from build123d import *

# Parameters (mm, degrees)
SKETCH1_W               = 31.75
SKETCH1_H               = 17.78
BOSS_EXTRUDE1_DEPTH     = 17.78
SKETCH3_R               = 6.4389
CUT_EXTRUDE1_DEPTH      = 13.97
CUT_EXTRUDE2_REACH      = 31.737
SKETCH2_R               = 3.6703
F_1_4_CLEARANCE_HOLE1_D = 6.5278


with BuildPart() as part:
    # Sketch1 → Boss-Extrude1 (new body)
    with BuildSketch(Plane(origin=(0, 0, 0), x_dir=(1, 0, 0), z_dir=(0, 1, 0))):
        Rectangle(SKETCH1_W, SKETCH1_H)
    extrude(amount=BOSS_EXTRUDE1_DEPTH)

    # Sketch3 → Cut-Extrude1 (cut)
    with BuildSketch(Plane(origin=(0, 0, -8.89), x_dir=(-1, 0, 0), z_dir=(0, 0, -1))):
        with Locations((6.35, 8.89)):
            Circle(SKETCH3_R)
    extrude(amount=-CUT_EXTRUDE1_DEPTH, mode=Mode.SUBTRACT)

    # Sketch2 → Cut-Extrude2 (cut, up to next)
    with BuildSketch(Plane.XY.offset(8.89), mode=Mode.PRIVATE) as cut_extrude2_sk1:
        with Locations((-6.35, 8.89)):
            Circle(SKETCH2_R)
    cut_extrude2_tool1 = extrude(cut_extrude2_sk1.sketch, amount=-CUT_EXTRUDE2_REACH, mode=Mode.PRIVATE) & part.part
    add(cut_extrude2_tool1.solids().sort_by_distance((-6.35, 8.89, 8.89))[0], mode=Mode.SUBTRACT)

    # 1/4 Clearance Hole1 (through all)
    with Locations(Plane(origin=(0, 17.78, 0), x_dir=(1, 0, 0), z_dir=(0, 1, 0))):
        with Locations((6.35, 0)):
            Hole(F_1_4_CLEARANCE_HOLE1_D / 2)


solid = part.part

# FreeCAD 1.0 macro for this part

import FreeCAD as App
import Part
import Sketcher

V = App.Vector
Q = App.Units.Quantity

doc = App.newDocument("Part")
body = doc.addObject("PartDesign::Body", "Body")

# Sketch on XZ plane
sketch1 = body.newObject("Sketcher::SketchObject", "Sketch")
sketch1.AttachmentSupport = (doc.getObject("XZ_Plane"), [""])
sketch1.MapMode = "FlatFace"
sketch1.addGeometry([
    Part.LineSegment(V(-16, -9, 0), V(-16, 9, 0)),
    Part.LineSegment(V(-16, 9, 0), V(16, 9, 0)),
    Part.LineSegment(V(16, 9, 0), V(16, -9, 0)),
    Part.LineSegment(V(16, -9, 0), V(-16, -9, 0)),
], False)
sketch1.addConstraint([
    Sketcher.Constraint("Coincident", 0, 2, 1, 1),
    Sketcher.Constraint("Coincident", 1, 2, 2, 1),
    Sketcher.Constraint("Coincident", 2, 2, 3, 1),
    Sketcher.Constraint("Coincident", 3, 2, 0, 1),
    Sketcher.Constraint("Vertical", 0),
    Sketcher.Constraint("Horizontal", 1),
    Sketcher.Constraint("Vertical", 2),
    Sketcher.Constraint("Horizontal", 3),
    Sketcher.Constraint("Symmetric", 0, 2, 2, 2, -1, 1),
    Sketcher.Constraint("DistanceY", 0, 1, 0, 2, Q("0.7 in")),
    Sketcher.Constraint("DistanceX", 1, 1, 1, 2, Q("1.25 in")),
])
pad1 = body.newObject("PartDesign::Pad", "Pad")
pad1.Profile = sketch1
pad1.Length = Q("0.7 in")
pad1.Reversed = True

# Sketch on XY plane
sketch2 = body.newObject("Sketcher::SketchObject", "Sketch001")
sketch2.AttachmentSupport = (doc.getObject("XY_Plane"), [""])
sketch2.MapMode = "FlatFace"
sketch2.AttachmentOffset = App.Placement(V(0, 0, -0.35 * 25.4), App.Rotation())
sketch2.addGeometry(Part.Circle(V(-6, 9, 0), V(0, 0, 1), 6), False)
sketch2.addConstraint([
    Sketcher.Constraint("Diameter", 0, Q("0.507 in")),
    Sketcher.Constraint("DistanceX", 0, 3, -1, 1, Q("0.25 in")),
    Sketcher.Constraint("DistanceY", -1, 1, 0, 3, Q("0.35 in")),
])
pocket1 = body.newObject("PartDesign::Pocket", "Pocket")
pocket1.Profile = sketch2
pocket1.Length = Q("0.55 in")
pocket1.Reversed = True

# Sketch on XY plane
sketch3 = body.newObject("Sketcher::SketchObject", "Sketch002")
sketch3.AttachmentSupport = (doc.getObject("XY_Plane"), [""])
sketch3.MapMode = "FlatFace"
sketch3.AttachmentOffset = App.Placement(V(0, 0, 0.35 * 25.4), App.Rotation())
sketch3.addGeometry(Part.Circle(V(-6.3, 8.9, 0), V(0, 0, 1), 3.7), False)
sketch3.addConstraint([
    Sketcher.Constraint("Diameter", 0, Q("0.289 in")),
    Sketcher.Constraint("DistanceX", 0, 3, -1, 1, Q("0.25 in")),
    Sketcher.Constraint("DistanceY", -1, 1, 0, 3, Q("0.35 in")),
])
pocket2 = body.newObject("PartDesign::Pocket", "Pocket001")
pocket2.Profile = sketch3
pocket2.Type = "UpToFirst"

# Sketch on XZ plane
sketch4 = body.newObject("Sketcher::SketchObject", "Sketch003")
sketch4.AttachmentSupport = (doc.getObject("XZ_Plane"), [""])
sketch4.MapMode = "FlatFace"
sketch4.AttachmentOffset = App.Placement(V(0, 0, -0.7 * 25.4), App.Rotation())
sketch4.addGeometry(Part.Circle(V(6.3, 0, 0), V(0, 0, 1), 3.3), False)
sketch4.addConstraint([
    Sketcher.Constraint("PointOnObject", 0, 3, -1),
    Sketcher.Constraint("Diameter", 0, Q("0.257 in")),
    Sketcher.Constraint("DistanceX", -1, 1, 0, 3, Q("0.25 in")),
])
doc.recompute()
hole = body.newObject("PartDesign::Hole", "Hole")
hole.Profile = sketch4
hole.ThreadType = "None"
hole.Diameter = Q("0.257 in")
hole.DepthType = "ThroughAll"
hole.Reversed = True

doc.recompute()
